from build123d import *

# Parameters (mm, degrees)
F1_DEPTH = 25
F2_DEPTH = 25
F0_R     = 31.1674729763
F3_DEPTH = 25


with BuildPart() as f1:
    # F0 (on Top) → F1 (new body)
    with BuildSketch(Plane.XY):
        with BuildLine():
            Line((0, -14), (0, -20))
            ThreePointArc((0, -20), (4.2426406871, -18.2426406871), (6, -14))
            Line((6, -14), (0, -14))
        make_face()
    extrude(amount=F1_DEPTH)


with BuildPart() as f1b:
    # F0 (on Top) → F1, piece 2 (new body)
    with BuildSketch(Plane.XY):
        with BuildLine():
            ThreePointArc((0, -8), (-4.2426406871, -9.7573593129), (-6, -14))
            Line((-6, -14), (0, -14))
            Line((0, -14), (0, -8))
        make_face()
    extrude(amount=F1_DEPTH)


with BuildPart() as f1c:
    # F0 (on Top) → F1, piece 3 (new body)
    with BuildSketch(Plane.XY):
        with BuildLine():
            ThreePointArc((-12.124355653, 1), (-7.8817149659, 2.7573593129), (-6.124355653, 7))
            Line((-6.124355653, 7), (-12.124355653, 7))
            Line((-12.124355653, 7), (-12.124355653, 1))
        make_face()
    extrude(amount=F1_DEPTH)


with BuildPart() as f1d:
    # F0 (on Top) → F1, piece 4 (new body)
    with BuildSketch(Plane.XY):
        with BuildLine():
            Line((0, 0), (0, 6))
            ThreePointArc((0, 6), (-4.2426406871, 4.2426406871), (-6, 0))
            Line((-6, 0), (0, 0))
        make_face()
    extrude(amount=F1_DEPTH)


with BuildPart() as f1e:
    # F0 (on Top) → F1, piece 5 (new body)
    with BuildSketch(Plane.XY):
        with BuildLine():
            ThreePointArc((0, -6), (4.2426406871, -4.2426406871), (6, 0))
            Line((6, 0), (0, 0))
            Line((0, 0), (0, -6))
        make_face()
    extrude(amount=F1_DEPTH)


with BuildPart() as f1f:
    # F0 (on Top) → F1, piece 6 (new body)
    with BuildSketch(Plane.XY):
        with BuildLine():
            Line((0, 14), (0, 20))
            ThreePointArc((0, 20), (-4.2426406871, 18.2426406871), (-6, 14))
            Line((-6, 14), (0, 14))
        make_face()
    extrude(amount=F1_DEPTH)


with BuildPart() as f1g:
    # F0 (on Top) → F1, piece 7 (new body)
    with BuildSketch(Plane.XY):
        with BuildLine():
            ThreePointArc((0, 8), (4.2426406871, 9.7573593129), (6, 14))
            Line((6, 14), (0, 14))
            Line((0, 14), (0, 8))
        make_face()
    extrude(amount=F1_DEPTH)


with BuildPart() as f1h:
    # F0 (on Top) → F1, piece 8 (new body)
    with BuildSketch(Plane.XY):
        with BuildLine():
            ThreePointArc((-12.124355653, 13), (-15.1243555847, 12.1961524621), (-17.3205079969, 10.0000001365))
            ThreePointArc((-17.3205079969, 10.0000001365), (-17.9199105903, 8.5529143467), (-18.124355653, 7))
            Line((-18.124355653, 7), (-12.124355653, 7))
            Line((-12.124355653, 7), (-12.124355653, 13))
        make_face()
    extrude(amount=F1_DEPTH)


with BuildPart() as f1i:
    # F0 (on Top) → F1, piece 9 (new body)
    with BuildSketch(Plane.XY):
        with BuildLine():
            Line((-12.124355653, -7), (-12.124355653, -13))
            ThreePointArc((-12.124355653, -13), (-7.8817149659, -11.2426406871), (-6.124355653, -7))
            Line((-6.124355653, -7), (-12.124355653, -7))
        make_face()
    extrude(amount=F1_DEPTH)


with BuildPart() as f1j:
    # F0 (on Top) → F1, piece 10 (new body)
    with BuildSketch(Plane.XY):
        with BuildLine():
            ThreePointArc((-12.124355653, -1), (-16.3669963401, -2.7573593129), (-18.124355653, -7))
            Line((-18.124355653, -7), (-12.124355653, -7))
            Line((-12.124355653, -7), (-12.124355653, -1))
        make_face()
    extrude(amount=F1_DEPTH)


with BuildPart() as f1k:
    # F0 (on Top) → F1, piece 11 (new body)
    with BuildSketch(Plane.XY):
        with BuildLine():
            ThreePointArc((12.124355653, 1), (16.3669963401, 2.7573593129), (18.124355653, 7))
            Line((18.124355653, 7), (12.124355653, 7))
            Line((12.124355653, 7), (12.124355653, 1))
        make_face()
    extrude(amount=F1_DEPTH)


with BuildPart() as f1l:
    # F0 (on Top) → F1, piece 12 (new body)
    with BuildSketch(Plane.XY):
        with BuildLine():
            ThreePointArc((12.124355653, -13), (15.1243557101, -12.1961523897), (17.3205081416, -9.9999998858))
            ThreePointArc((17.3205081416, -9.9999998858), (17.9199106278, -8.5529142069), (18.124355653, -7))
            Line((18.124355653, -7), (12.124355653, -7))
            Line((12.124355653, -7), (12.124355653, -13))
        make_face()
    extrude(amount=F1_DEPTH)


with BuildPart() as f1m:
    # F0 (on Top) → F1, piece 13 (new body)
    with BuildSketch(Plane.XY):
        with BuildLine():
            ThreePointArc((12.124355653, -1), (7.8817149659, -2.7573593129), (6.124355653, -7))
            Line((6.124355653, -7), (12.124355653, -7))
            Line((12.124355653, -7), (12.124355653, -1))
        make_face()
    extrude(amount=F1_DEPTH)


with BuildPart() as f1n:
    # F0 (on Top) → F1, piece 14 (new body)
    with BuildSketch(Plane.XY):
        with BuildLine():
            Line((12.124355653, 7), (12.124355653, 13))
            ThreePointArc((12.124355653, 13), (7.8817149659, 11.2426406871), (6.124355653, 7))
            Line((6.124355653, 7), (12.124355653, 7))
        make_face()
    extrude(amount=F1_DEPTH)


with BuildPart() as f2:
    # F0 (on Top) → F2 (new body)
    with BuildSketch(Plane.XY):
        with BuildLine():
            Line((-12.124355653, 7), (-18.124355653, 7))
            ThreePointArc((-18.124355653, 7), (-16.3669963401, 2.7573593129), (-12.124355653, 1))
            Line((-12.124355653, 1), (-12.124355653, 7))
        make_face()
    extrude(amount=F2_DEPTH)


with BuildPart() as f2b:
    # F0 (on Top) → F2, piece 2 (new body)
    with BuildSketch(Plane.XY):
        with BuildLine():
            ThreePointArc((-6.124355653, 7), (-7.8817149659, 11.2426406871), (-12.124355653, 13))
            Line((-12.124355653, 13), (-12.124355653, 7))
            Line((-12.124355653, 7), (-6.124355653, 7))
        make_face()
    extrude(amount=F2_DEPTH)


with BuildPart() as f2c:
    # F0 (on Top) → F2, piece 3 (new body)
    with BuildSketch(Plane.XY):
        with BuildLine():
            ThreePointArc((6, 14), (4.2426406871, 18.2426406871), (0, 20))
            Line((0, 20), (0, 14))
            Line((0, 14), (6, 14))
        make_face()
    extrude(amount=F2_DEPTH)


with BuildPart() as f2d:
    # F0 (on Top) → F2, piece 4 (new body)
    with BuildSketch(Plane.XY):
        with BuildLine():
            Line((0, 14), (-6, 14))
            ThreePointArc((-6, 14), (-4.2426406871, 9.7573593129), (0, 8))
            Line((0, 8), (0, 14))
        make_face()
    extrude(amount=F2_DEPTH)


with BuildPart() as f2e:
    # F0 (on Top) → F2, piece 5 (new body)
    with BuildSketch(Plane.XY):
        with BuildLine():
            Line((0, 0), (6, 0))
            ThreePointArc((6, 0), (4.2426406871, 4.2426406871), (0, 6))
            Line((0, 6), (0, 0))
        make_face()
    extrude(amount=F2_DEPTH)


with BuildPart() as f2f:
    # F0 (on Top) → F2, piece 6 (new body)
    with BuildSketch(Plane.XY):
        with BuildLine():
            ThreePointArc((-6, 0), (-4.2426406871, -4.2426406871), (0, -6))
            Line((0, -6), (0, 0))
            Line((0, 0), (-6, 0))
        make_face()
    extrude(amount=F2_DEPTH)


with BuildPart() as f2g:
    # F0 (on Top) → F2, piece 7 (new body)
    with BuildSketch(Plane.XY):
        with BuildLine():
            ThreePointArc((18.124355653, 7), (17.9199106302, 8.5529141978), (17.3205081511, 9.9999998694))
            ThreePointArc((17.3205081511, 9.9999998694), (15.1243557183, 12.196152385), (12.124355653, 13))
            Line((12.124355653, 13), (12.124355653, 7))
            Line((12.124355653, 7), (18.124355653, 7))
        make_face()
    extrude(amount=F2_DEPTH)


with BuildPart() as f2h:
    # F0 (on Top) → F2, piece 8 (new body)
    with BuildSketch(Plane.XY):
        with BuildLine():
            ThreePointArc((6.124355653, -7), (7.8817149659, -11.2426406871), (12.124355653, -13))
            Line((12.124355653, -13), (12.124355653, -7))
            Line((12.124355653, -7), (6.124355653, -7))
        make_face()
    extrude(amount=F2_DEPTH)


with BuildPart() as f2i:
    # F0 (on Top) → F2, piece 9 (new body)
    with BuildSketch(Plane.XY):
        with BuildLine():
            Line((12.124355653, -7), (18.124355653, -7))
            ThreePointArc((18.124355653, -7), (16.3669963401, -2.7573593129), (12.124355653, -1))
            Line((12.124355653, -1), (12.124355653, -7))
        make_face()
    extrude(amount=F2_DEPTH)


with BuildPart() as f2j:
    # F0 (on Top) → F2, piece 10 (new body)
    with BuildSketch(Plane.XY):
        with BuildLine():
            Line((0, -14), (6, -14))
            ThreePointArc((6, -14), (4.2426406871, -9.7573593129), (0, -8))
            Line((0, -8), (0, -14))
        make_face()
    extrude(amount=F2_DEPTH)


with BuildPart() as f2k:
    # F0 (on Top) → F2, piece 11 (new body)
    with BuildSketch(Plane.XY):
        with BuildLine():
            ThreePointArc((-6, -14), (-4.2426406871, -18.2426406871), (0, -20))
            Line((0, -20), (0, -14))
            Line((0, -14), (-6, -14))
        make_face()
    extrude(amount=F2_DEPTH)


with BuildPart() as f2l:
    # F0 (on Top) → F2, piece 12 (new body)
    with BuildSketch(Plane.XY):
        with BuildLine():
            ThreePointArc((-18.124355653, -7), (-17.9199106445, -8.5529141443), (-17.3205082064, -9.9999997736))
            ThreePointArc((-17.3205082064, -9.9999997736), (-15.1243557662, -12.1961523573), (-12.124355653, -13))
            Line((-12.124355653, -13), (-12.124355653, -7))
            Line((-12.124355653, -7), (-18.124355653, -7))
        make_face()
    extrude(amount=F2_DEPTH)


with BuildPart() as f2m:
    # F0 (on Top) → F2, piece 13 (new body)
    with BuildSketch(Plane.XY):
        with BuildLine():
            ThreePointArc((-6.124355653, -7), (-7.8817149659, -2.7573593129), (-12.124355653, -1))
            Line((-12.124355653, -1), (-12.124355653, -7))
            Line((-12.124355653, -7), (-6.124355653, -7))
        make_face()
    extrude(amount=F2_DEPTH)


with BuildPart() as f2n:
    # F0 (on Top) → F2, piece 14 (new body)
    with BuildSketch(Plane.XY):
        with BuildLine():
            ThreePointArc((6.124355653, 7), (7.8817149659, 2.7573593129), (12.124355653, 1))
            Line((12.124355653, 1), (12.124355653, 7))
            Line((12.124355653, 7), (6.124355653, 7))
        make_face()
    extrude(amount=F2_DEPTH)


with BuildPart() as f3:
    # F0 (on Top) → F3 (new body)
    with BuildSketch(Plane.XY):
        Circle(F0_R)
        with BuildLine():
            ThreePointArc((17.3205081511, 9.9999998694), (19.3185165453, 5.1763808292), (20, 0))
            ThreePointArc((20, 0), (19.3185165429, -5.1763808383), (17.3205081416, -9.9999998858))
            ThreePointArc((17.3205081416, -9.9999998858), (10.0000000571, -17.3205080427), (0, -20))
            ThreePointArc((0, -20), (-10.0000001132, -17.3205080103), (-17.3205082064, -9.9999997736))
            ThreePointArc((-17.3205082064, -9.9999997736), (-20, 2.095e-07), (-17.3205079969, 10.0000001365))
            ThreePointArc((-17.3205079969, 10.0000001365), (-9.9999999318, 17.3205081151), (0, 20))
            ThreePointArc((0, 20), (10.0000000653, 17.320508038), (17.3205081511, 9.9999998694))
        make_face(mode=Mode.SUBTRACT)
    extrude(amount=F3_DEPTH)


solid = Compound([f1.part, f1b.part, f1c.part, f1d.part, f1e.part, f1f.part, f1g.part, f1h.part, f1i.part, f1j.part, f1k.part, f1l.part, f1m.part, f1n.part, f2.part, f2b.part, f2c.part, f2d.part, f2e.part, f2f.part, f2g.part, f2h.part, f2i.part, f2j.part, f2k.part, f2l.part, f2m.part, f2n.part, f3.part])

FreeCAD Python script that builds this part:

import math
import FreeCAD as App
import Part
import Sketcher

doc = App.newDocument("Part")
params = doc.addObject("Spreadsheet::Sheet", "Params")
for row, (alias, value) in enumerate([
    ("sketch1_radius", "6 mm"),
    ("pad1_length", "25 mm"),
    ("sketch2_radius", "6 mm"),
    ("pad2_length", "25 mm"),
    ("sketch3_radius", "6 mm"),
    ("pad3_length", "25 mm"),
    ("sketch4_radius", "6 mm"),
    ("pad4_length", "25 mm"),
    ("sketch5_radius", "6 mm"),
    ("pad5_length", "25 mm"),
    ("sketch6_radius", "6 mm"),
    ("pad6_length", "25 mm"),
    ("sketch7_radius", "6 mm"),
    ("pad7_length", "25 mm"),
    ("sketch8_radius", "6 mm"),
    ("pad8_length", "25 mm"),
    ("sketch9_radius", "6 mm"),
    ("pad9_length", "25 mm"),
    ("sketch10_radius", "6 mm"),
    ("pad10_length", "25 mm"),
    ("sketch11_radius", "6 mm"),
    ("pad11_length", "25 mm"),
    ("sketch12_radius", "6 mm"),
    ("pad12_length", "25 mm"),
    ("sketch13_radius", "6 mm"),
    ("pad13_length", "25 mm"),
    ("sketch14_radius", "6 mm"),
    ("pad14_length", "25 mm"),
    ("sketch15_radius", "6 mm"),
    ("pad15_length", "25 mm"),
    ("sketch16_radius", "6 mm"),
    ("pad16_length", "25 mm"),
    ("sketch17_radius", "6 mm"),
    ("pad17_length", "25 mm"),
    ("sketch18_radius", "6 mm"),
    ("pad18_length", "25 mm"),
    ("sketch19_radius", "6 mm"),
    ("pad19_length", "25 mm"),
    ("sketch20_radius", "6 mm"),
    ("pad20_length", "25 mm"),
    ("sketch21_radius", "6 mm"),
    ("pad21_length", "25 mm"),
    ("sketch22_radius", "6 mm"),
    ("pad22_length", "25 mm"),
    ("sketch23_radius", "6 mm"),
    ("pad23_length", "25 mm"),
    ("sketch24_radius", "6 mm"),
    ("pad24_length", "25 mm"),
    ("sketch25_radius", "6 mm"),
    ("pad25_length", "25 mm"),
    ("sketch26_radius", "6 mm"),
    ("pad26_length", "25 mm"),
    ("sketch27_radius", "6 mm"),
    ("pad27_length", "25 mm"),
    ("sketch28_radius", "6 mm"),
    ("pad28_length", "25 mm"),
    ("sketch29_radius", "20 mm"),
    ("pad29_length", "25 mm"),
], start=1):
    params.set(f"A{row}", alias)
    params.set(f"B{row}", "=" + value)
    params.setAlias(f"B{row}", alias)

body = doc.addObject("PartDesign::Body", "Body")

sketch1 = body.newObject("Sketcher::SketchObject", "Sketch")
sketch1.AttachmentSupport = (doc.getObject("XY_Plane"), [""])
sketch1.MapMode = "FlatFace"
sketch1.addGeometry([
    Part.LineSegment(App.Vector(0, -14, 0), App.Vector(0, -20, 0)),
    Part.ArcOfCircle(Part.Circle(App.Vector(0, -14, 0), App.Vector(0, 0, 1), 6), math.radians(-90), math.radians(0)),
    Part.LineSegment(App.Vector(6, -14, 0), App.Vector(0, -14, 0)),
], False)
sketch1.addConstraint([
    Sketcher.Constraint("Coincident", 0, 2, 1, 1),
    Sketcher.Constraint("Coincident", 1, 2, 2, 1),
    Sketcher.Constraint("Coincident", 2, 2, 0, 1),
    Sketcher.Constraint("Vertical", 0),
    Sketcher.Constraint("Horizontal", 2),
    Sketcher.Constraint("Coincident", 2, 2, 1, 3),
    Sketcher.Constraint("PointOnObject", 1, 3, -2),
    Sketcher.Constraint("Radius", 1, 6.0),
    Sketcher.Constraint("DistanceY", 1, 3, -1, 1, 14.0),
])
sketch1.setExpression("Constraints[7]", "Params.sketch1_radius")
pad1 = body.newObject("PartDesign::Pad", "Pad")
pad1.Profile = sketch1
pad1.setExpression("Length", "Params.pad1_length")
body2 = doc.addObject("PartDesign::Body", "Body001")

sketch2 = body2.newObject("Sketcher::SketchObject", "Sketch001")
sketch2.AttachmentSupport = (doc.getObject("XY_Plane001"), [""])
sketch2.MapMode = "FlatFace"
sketch2.addGeometry([
    Part.ArcOfCircle(Part.Circle(App.Vector(0, -14, 0), App.Vector(0, 0, 1), 6), math.radians(90), math.radians(180)),
    Part.LineSegment(App.Vector(-6, -14, 0), App.Vector(0, -14, 0)),
    Part.LineSegment(App.Vector(0, -14, 0), App.Vector(0, -8, 0)),
], False)
sketch2.addConstraint([
    Sketcher.Constraint("Coincident", 0, 2, 1, 1),
    Sketcher.Constraint("Coincident", 1, 2, 2, 1),
    Sketcher.Constraint("Coincident", 2, 2, 0, 1),
    Sketcher.Constraint("Horizontal", 1),
    Sketcher.Constraint("Vertical", 2),
    Sketcher.Constraint("Coincident", 1, 2, 0, 3),
    Sketcher.Constraint("PointOnObject", 0, 3, -2),
    Sketcher.Constraint("Radius", 0, 6.0),
    Sketcher.Constraint("DistanceY", 0, 3, -1, 1, 14.0),
])
sketch2.setExpression("Constraints[7]", "Params.sketch2_radius")
pad2 = body2.newObject("PartDesign::Pad", "Pad001")
pad2.Profile = sketch2
pad2.setExpression("Length", "Params.pad2_length")
body3 = doc.addObject("PartDesign::Body", "Body002")

sketch3 = body3.newObject("Sketcher::SketchObject", "Sketch002")
sketch3.AttachmentSupport = (doc.getObject("XY_Plane002"), [""])
sketch3.MapMode = "FlatFace"
sketch3.addGeometry([
    Part.ArcOfCircle(Part.Circle(App.Vector(-12.124356, 7, 0), App.Vector(0, 0, 1), 6), math.radians(-90), math.radians(0)),
    Part.LineSegment(App.Vector(-6.124356, 7, 0), App.Vector(-12.124356, 7, 0)),
    Part.LineSegment(App.Vector(-12.124356, 7, 0), App.Vector(-12.124356, 1, 0)),
], False)
sketch3.addConstraint([
    Sketcher.Constraint("Coincident", 0, 2, 1, 1),
    Sketcher.Constraint("Coincident", 1, 2, 2, 1),
    Sketcher.Constraint("Coincident", 2, 2, 0, 1),
    Sketcher.Constraint("Horizontal", 1),
    Sketcher.Constraint("Vertical", 2),
    Sketcher.Constraint("Coincident", 1, 2, 0, 3),
    Sketcher.Constraint("Radius", 0, 6.0),
    Sketcher.Constraint("DistanceY", -1, 1, 0, 3, 7.0),
    Sketcher.Constraint("DistanceX", 0, 3, -1, 1, 12.124356),
])
sketch3.setExpression("Constraints[6]", "Params.sketch3_radius")
pad3 = body3.newObject("PartDesign::Pad", "Pad002")
pad3.Profile = sketch3
pad3.setExpression("Length", "Params.pad3_length")
body4 = doc.addObject("PartDesign::Body", "Body003")

sketch4 = body4.newObject("Sketcher::SketchObject", "Sketch003")
sketch4.AttachmentSupport = (doc.getObject("XY_Plane003"), [""])
sketch4.MapMode = "FlatFace"
sketch4.addGeometry([
    Part.LineSegment(App.Vector(0, 0, 0), App.Vector(0, 6, 0)),
    Part.ArcOfCircle(Part.Circle(App.Vector(0, 0, 0), App.Vector(0, 0, 1), 6), math.radians(90), math.radians(180)),
    Part.LineSegment(App.Vector(-6, 0, 0), App.Vector(0, 0, 0)),
], False)
sketch4.addConstraint([
    Sketcher.Constraint("Coincident", 0, 2, 1, 1),
    Sketcher.Constraint("Coincident", 1, 2, 2, 1),
    Sketcher.Constraint("Coincident", 2, 2, 0, 1),
    Sketcher.Constraint("Vertical", 0),
    Sketcher.Constraint("Horizontal", 2),
    Sketcher.Constraint("Coincident", 1, 3, -1, 1),
    Sketcher.Constraint("Coincident", 2, 2, -1, 1),
    Sketcher.Constraint("Radius", 1, 6.0),
])
sketch4.setExpression("Constraints[7]", "Params.sketch4_radius")
pad4 = body4.newObject("PartDesign::Pad", "Pad003")
pad4.Profile = sketch4
pad4.setExpression("Length", "Params.pad4_length")
body5 = doc.addObject("PartDesign::Body", "Body004")

sketch5 = body5.newObject("Sketcher::SketchObject", "Sketch004")
sketch5.AttachmentSupport = (doc.getObject("XY_Plane004"), [""])
sketch5.MapMode = "FlatFace"
sketch5.addGeometry([
    Part.ArcOfCircle(Part.Circle(App.Vector(0, 0, 0), App.Vector(0, 0, 1), 6), math.radians(-90), math.radians(0)),
    Part.LineSegment(App.Vector(6, 0, 0), App.Vector(0, 0, 0)),
    Part.LineSegment(App.Vector(0, 0, 0), App.Vector(0, -6, 0)),
], False)
sketch5.addConstraint([
    Sketcher.Constraint("Coincident", 0, 2, 1, 1),
    Sketcher.Constraint("Coincident", 1, 2, 2, 1),
    Sketcher.Constraint("Coincident", 2, 2, 0, 1),
    Sketcher.Constraint("Horizontal", 1),
    Sketcher.Constraint("Vertical", 2),
    Sketcher.Constraint("Coincident", 0, 3, -1, 1),
    Sketcher.Constraint("Coincident", 1, 2, -1, 1),
    Sketcher.Constraint("Radius", 0, 6.0),
])
sketch5.setExpression("Constraints[7]", "Params.sketch5_radius")
pad5 = body5.newObject("PartDesign::Pad", "Pad004")
pad5.Profile = sketch5
pad5.setExpression("Length", "Params.pad5_length")
body6 = doc.addObject("PartDesign::Body", "Body005")

sketch6 = body6.newObject("Sketcher::SketchObject", "Sketch005")
sketch6.AttachmentSupport = (doc.getObject("XY_Plane005"), [""])
sketch6.MapMode = "FlatFace"
sketch6.addGeometry([
    Part.LineSegment(App.Vector(0, 14, 0), App.Vector(0, 20, 0)),
    Part.ArcOfCircle(Part.Circle(App.Vector(0, 14, 0), App.Vector(0, 0, 1), 6), math.radians(90), math.radians(180)),
    Part.LineSegment(App.Vector(-6, 14, 0), App.Vector(0, 14, 0)),
], False)
sketch6.addConstraint([
    Sketcher.Constraint("Coincident", 0, 2, 1, 1),
    Sketcher.Constraint("Coincident", 1, 2, 2, 1),
    Sketcher.Constraint("Coincident", 2, 2, 0, 1),
    Sketcher.Constraint("Vertical", 0),
    Sketcher.Constraint("Horizontal", 2),
    Sketcher.Constraint("Coincident", 2, 2, 1, 3),
    Sketcher.Constraint("PointOnObject", 1, 3, -2),
    Sketcher.Constraint("Radius", 1, 6.0),
    Sketcher.Constraint("DistanceY", -1, 1, 1, 3, 14.0),
])
sketch6.setExpression("Constraints[7]", "Params.sketch6_radius")
pad6 = body6.newObject("PartDesign::Pad", "Pad005")
pad6.Profile = sketch6
pad6.setExpression("Length", "Params.pad6_length")
body7 = doc.addObject("PartDesign::Body", "Body006")

sketch7 = body7.newObject("Sketcher::SketchObject", "Sketch006")
sketch7.AttachmentSupport = (doc.getObject("XY_Plane006"), [""])
sketch7.MapMode = "FlatFace"
sketch7.addGeometry([
    Part.ArcOfCircle(Part.Circle(App.Vector(0, 14, 0), App.Vector(0, 0, 1), 6), math.radians(-90), math.radians(0)),
    Part.LineSegment(App.Vector(6, 14, 0), App.Vector(0, 14, 0)),
    Part.LineSegment(App.Vector(0, 14, 0), App.Vector(0, 8, 0)),
], False)
sketch7.addConstraint([
    Sketcher.Constraint("Coincident", 0, 2, 1, 1),
    Sketcher.Constraint("Coincident", 1, 2, 2, 1),
    Sketcher.Constraint("Coincident", 2, 2, 0, 1),
    Sketcher.Constraint("Horizontal", 1),
    Sketcher.Constraint("Vertical", 2),
    Sketcher.Constraint("Coincident", 1, 2, 0, 3),
    Sketcher.Constraint("PointOnObject", 0, 3, -2),
    Sketcher.Constraint("Radius", 0, 6.0),
    Sketcher.Constraint("DistanceY", -1, 1, 0, 3, 14.0),
])
sketch7.setExpression("Constraints[7]", "Params.sketch7_radius")
pad7 = body7.newObject("PartDesign::Pad", "Pad006")
pad7.Profile = sketch7
pad7.setExpression("Length", "Params.pad7_length")
body8 = doc.addObject("PartDesign::Body", "Body007")

sketch8 = body8.newObject("Sketcher::SketchObject", "Sketch007")
sketch8.AttachmentSupport = (doc.getObject("XY_Plane007"), [""])
sketch8.MapMode = "FlatFace"
sketch8.addGeometry([
    Part.ArcOfCircle(Part.Circle(App.Vector(-12.124356, 7, 0), App.Vector(0, 0, 1), 6), math.radians(90), math.radians(149.999998)),
    Part.ArcOfCircle(Part.Circle(App.Vector(-12.124356, 7, 0), App.Vector(0, 0, 1), 6), math.radians(149.999998), math.radians(180)),
    Part.LineSegment(App.Vector(-18.124356, 7, 0), App.Vector(-12.124356, 7, 0)),
    Part.LineSegment(App.Vector(-12.124356, 7, 0), App.Vector(-12.124356, 13, 0)),
], False)
sketch8.addConstraint([
    Sketcher.Constraint("Tangent", 0, 2, 1, 1),
    Sketcher.Constraint("Coincident", 1, 2, 2, 1),
    Sketcher.Constraint("Coincident", 2, 2, 3, 1),
    Sketcher.Constraint("Coincident", 3, 2, 0, 1),
    Sketcher.Constraint("Horizontal", 2),
    Sketcher.Constraint("Vertical", 3),
    Sketcher.Constraint("Coincident", 2, 2, 0, 3),
    Sketcher.Constraint("Equal", 0, 1),
    Sketcher.Constraint("Radius", 0, 6.0),
    Sketcher.Constraint("DistanceY", -1, 1, 0, 3, 7.0),
    Sketcher.Constraint("DistanceY", -1, 1, 0, 2, 10.0),
    Sketcher.Constraint("DistanceX", 0, 3, -1, 1, 12.124356),
])
sketch8.setExpression("Constraints[8]", "Params.sketch8_radius")
pad8 = body8.newObject("PartDesign::Pad", "Pad007")
pad8.Profile = sketch8
pad8.setExpression("Length", "Params.pad8_length")
body9 = doc.addObject("PartDesign::Body", "Body008")

sketch9 = body9.newObject("Sketcher::SketchObject", "Sketch008")
sketch9.AttachmentSupport = (doc.getObject("XY_Plane008"), [""])
sketch9.MapMode = "FlatFace"
sketch9.addGeometry([
    Part.LineSegment(App.Vector(-12.124356, -7, 0), App.Vector(-12.124356, -13, 0)),
    Part.ArcOfCircle(Part.Circle(App.Vector(-12.124356, -7, 0), App.Vector(0, 0, 1), 6), math.radians(-90), math.radians(0)),
    Part.LineSegment(App.Vector(-6.124356, -7, 0), App.Vector(-12.124356, -7, 0)),
], False)
sketch9.addConstraint([
    Sketcher.Constraint("Coincident", 0, 2, 1, 1),
    Sketcher.Constraint("Coincident", 1, 2, 2, 1),
    Sketcher.Constraint("Coincident", 2, 2, 0, 1),
    Sketcher.Constraint("Vertical", 0),
    Sketcher.Constraint("Horizontal", 2),
    Sketcher.Constraint("Coincident", 2, 2, 1, 3),
    Sketcher.Constraint("Radius", 1, 6.0),
    Sketcher.Constraint("DistanceY", 1, 3, -1, 1, 7.0),
    Sketcher.Constraint("DistanceX", 1, 3, -1, 1, 12.124356),
])
sketch9.setExpression("Constraints[6]", "Params.sketch9_radius")
pad9 = body9.newObject("PartDesign::Pad", "Pad008")
pad9.Profile = sketch9
pad9.setExpression("Length", "Params.pad9_length")
body10 = doc.addObject("PartDesign::Body", "Body009")

sketch10 = body10.newObject("Sketcher::SketchObject", "Sketch009")
sketch10.AttachmentSupport = (doc.getObject("XY_Plane009"), [""])
sketch10.MapMode = "FlatFace"
sketch10.addGeometry([
    Part.ArcOfCircle(Part.Circle(App.Vector(-12.124356, -7, 0), App.Vector(0, 0, 1), 6), math.radians(90), math.radians(180)),
    Part.LineSegment(App.Vector(-18.124356, -7, 0), App.Vector(-12.124356, -7, 0)),
    Part.LineSegment(App.Vector(-12.124356, -7, 0), App.Vector(-12.124356, -1, 0)),
], False)
sketch10.addConstraint([
    Sketcher.Constraint("Coincident", 0, 2, 1, 1),
    Sketcher.Constraint("Coincident", 1, 2, 2, 1),
    Sketcher.Constraint("Coincident", 2, 2, 0, 1),
    Sketcher.Constraint("Horizontal", 1),
    Sketcher.Constraint("Vertical", 2),
    Sketcher.Constraint("Coincident", 1, 2, 0, 3),
    Sketcher.Constraint("Radius", 0, 6.0),
    Sketcher.Constraint("DistanceY", 0, 3, -1, 1, 7.0),
    Sketcher.Constraint("DistanceX", 0, 3, -1, 1, 12.124356),
])
sketch10.setExpression("Constraints[6]", "Params.sketch10_radius")
pad10 = body10.newObject("PartDesign::Pad", "Pad009")
pad10.Profile = sketch10
pad10.setExpression("Length", "Params.pad10_length")
body11 = doc.addObject("PartDesign::Body", "Body010")

sketch11 = body11.newObject("Sketcher::SketchObject", "Sketch010")
sketch11.AttachmentSupport = (doc.getObject("XY_Plane010"), [""])
sketch11.MapMode = "FlatFace"
sketch11.addGeometry([
    Part.ArcOfCircle(Part.Circle(App.Vector(12.124356, 7, 0), App.Vector(0, 0, 1), 6), math.radians(-90), math.radians(0)),
    Part.LineSegment(App.Vector(18.124356, 7, 0), App.Vector(12.124356, 7, 0)),
    Part.LineSegment(App.Vector(12.124356, 7, 0), App.Vector(12.124356, 1, 0)),
], False)
sketch11.addConstraint([
    Sketcher.Constraint("Coincident", 0, 2, 1, 1),
    Sketcher.Constraint("Coincident", 1, 2, 2, 1),
    Sketcher.Constraint("Coincident", 2, 2, 0, 1),
    Sketcher.Constraint("Horizontal", 1),
    Sketcher.Constraint("Vertical", 2),
    Sketcher.Constraint("Coincident", 1, 2, 0, 3),
    Sketcher.Constraint("Radius", 0, 6.0),
    Sketcher.Constraint("DistanceY", -1, 1, 0, 3, 7.0),
    Sketcher.Constraint("DistanceX", -1, 1, 0, 3, 12.124356),
])
sketch11.setExpression("Constraints[6]", "Params.sketch11_radius")
pad11 = body11.newObject("PartDesign::Pad", "Pad010")
pad11.Profile = sketch11
pad11.setExpression("Length", "Params.pad11_length")
body12 = doc.addObject("PartDesign::Body", "Body011")

sketch12 = body12.newObject("Sketcher::SketchObject", "Sketch011")
sketch12.AttachmentSupport = (doc.getObject("XY_Plane011"), [""])
sketch12.MapMode = "FlatFace"
sketch12.addGeometry([
    Part.ArcOfCircle(Part.Circle(App.Vector(12.124356, -7, 0), App.Vector(0, 0, 1), 6), math.radians(-90), math.radians(-29.999999)),
    Part.ArcOfCircle(Part.Circle(App.Vector(12.124356, -7, 0), App.Vector(0, 0, 1), 6), math.radians(-29.999999), math.radians(0)),
    Part.LineSegment(App.Vector(18.124356, -7, 0), App.Vector(12.124356, -7, 0)),
    Part.LineSegment(App.Vector(12.124356, -7, 0), App.Vector(12.124356, -13, 0)),
], False)
sketch12.addConstraint([
    Sketcher.Constraint("Tangent", 0, 2, 1, 1),
    Sketcher.Constraint("Coincident", 1, 2, 2, 1),
    Sketcher.Constraint("Coincident", 2, 2, 3, 1),
    Sketcher.Constraint("Coincident", 3, 2, 0, 1),
    Sketcher.Constraint("Horizontal", 2),
    Sketcher.Constraint("Vertical", 3),
    Sketcher.Constraint("Coincident", 2, 2, 0, 3),
    Sketcher.Constraint("Equal", 0, 1),
    Sketcher.Constraint("Radius", 0, 6.0),
    Sketcher.Constraint("DistanceY", 0, 3, -1, 1, 7.0),
    Sketcher.Constraint("DistanceY", 0, 2, -1, 1, 10.0),
    Sketcher.Constraint("DistanceX", -1, 1, 0, 2, 17.320508),
])
sketch12.setExpression("Constraints[8]", "Params.sketch12_radius")
pad12 = body12.newObject("PartDesign::Pad", "Pad011")
pad12.Profile = sketch12
pad12.setExpression("Length", "Params.pad12_length")
body13 = doc.addObject("PartDesign::Body", "Body012")

sketch13 = body13.newObject("Sketcher::SketchObject", "Sketch012")
sketch13.AttachmentSupport = (doc.getObject("XY_Plane012"), [""])
sketch13.MapMode = "FlatFace"
sketch13.addGeometry([
    Part.ArcOfCircle(Part.Circle(App.Vector(12.124356, -7, 0), App.Vector(0, 0, 1), 6), math.radians(90), math.radians(180)),
    Part.LineSegment(App.Vector(6.124356, -7, 0), App.Vector(12.124356, -7, 0)),
    Part.LineSegment(App.Vector(12.124356, -7, 0), App.Vector(12.124356, -1, 0)),
], False)
sketch13.addConstraint([
    Sketcher.Constraint("Coincident", 0, 2, 1, 1),
    Sketcher.Constraint("Coincident", 1, 2, 2, 1),
    Sketcher.Constraint("Coincident", 2, 2, 0, 1),
    Sketcher.Constraint("Horizontal", 1),
    Sketcher.Constraint("Vertical", 2),
    Sketcher.Constraint("Coincident", 1, 2, 0, 3),
    Sketcher.Constraint("Radius", 0, 6.0),
    Sketcher.Constraint("DistanceY", 0, 3, -1, 1, 7.0),
    Sketcher.Constraint("DistanceX", -1, 1, 0, 3, 12.124356),
])
sketch13.setExpression("Constraints[6]", "Params.sketch13_radius")
pad13 = body13.newObject("PartDesign::Pad", "Pad012")
pad13.Profile = sketch13
pad13.setExpression("Length", "Params.pad13_length")
body14 = doc.addObject("PartDesign::Body", "Body013")

sketch14 = body14.newObject("Sketcher::SketchObject", "Sketch013")
sketch14.AttachmentSupport = (doc.getObject("XY_Plane013"), [""])
sketch14.MapMode = "FlatFace"
sketch14.addGeometry([
    Part.LineSegment(App.Vector(12.124356, 7, 0), App.Vector(12.124356, 13, 0)),
    Part.ArcOfCircle(Part.Circle(App.Vector(12.124356, 7, 0), App.Vector(0, 0, 1), 6), math.radians(90), math.radians(180)),
    Part.LineSegment(App.Vector(6.124356, 7, 0), App.Vector(12.124356, 7, 0)),
], False)
sketch14.addConstraint([
    Sketcher.Constraint("Coincident", 0, 2, 1, 1),
    Sketcher.Constraint("Coincident", 1, 2, 2, 1),
    Sketcher.Constraint("Coincident", 2, 2, 0, 1),
    Sketcher.Constraint("Vertical", 0),
    Sketcher.Constraint("Horizontal", 2),
    Sketcher.Constraint("Coincident", 2, 2, 1, 3),
    Sketcher.Constraint("Radius", 1, 6.0),
    Sketcher.Constraint("DistanceY", -1, 1, 1, 3, 7.0),
    Sketcher.Constraint("DistanceX", -1, 1, 1, 3, 12.124356),
])
sketch14.setExpression("Constraints[6]", "Params.sketch14_radius")
pad14 = body14.newObject("PartDesign::Pad", "Pad013")
pad14.Profile = sketch14
pad14.setExpression("Length", "Params.pad14_length")
body15 = doc.addObject("PartDesign::Body", "Body014")

sketch15 = body15.newObject("Sketcher::SketchObject", "Sketch014")
sketch15.AttachmentSupport = (doc.getObject("XY_Plane014"), [""])
sketch15.MapMode = "FlatFace"
sketch15.addGeometry([
    Part.LineSegment(App.Vector(-12.124356, 7, 0), App.Vector(-18.124356, 7, 0)),
    Part.ArcOfCircle(Part.Circle(App.Vector(-12.124356, 7, 0), App.Vector(0, 0, 1), 6), math.radians(180), math.radians(270)),
    Part.LineSegment(App.Vector(-12.124356, 1, 0), App.Vector(-12.124356, 7, 0)),
], False)
sketch15.addConstraint([
    Sketcher.Constraint("Coincident", 0, 2, 1, 1),
    Sketcher.Constraint("Coincident", 1, 2, 2, 1),
    Sketcher.Constraint("Coincident", 2, 2, 0, 1),
    Sketcher.Constraint("Horizontal", 0),
    Sketcher.Constraint("Vertical", 2),
    Sketcher.Constraint("Coincident", 2, 2, 1, 3),
    Sketcher.Constraint("Radius", 1, 6.0),
    Sketcher.Constraint("DistanceY", -1, 1, 1, 3, 7.0),
    Sketcher.Constraint("DistanceX", 1, 3, -1, 1, 12.124356),
])
sketch15.setExpression("Constraints[6]", "Params.sketch15_radius")
pad15 = body15.newObject("PartDesign::Pad", "Pad014")
pad15.Profile = sketch15
pad15.setExpression("Length", "Params.pad15_length")
body16 = doc.addObject("PartDesign::Body", "Body015")

sketch16 = body16.newObject("Sketcher::SketchObject", "Sketch015")
sketch16.AttachmentSupport = (doc.getObject("XY_Plane015"), [""])
sketch16.MapMode = "FlatFace"
sketch16.addGeometry([
    Part.ArcOfCircle(Part.Circle(App.Vector(-12.124356, 7, 0), App.Vector(0, 0, 1), 6), math.radians(0), math.radians(90)),
    Part.LineSegment(App.Vector(-12.124356, 13, 0), App.Vector(-12.124356, 7, 0)),
    Part.LineSegment(App.Vector(-12.124356, 7, 0), App.Vector(-6.124356, 7, 0)),
], False)
sketch16.addConstraint([
    Sketcher.Constraint("Coincident", 0, 2, 1, 1),
    Sketcher.Constraint("Coincident", 1, 2, 2, 1),
    Sketcher.Constraint("Coincident", 2, 2, 0, 1),
    Sketcher.Constraint("Vertical", 1),
    Sketcher.Constraint("Horizontal", 2),
    Sketcher.Constraint("Coincident", 1, 2, 0, 3),
    Sketcher.Constraint("Radius", 0, 6.0),
    Sketcher.Constraint("DistanceY", -1, 1, 0, 3, 7.0),
    Sketcher.Constraint("DistanceX", 0, 3, -1, 1, 12.124356),
])
sketch16.setExpression("Constraints[6]", "Params.sketch16_radius")
pad16 = body16.newObject("PartDesign::Pad", "Pad015")
pad16.Profile = sketch16
pad16.setExpression("Length", "Params.pad16_length")
body17 = doc.addObject("PartDesign::Body", "Body016")

sketch17 = body17.newObject("Sketcher::SketchObject", "Sketch016")
sketch17.AttachmentSupport = (doc.getObject("XY_Plane016"), [""])
sketch17.MapMode = "FlatFace"
sketch17.addGeometry([
    Part.ArcOfCircle(Part.Circle(App.Vector(0, 14, 0), App.Vector(0, 0, 1), 6), math.radians(0), math.radians(90)),
    Part.LineSegment(App.Vector(0, 20, 0), App.Vector(0, 14, 0)),
    Part.LineSegment(App.Vector(0, 14, 0), App.Vector(6, 14, 0)),
], False)
sketch17.addConstraint([
    Sketcher.Constraint("Coincident", 0, 2, 1, 1),
    Sketcher.Constraint("Coincident", 1, 2, 2, 1),
    Sketcher.Constraint("Coincident", 2, 2, 0, 1),
    Sketcher.Constraint("Vertical", 1),
    Sketcher.Constraint("Horizontal", 2),
    Sketcher.Constraint("Coincident", 1, 2, 0, 3),
    Sketcher.Constraint("PointOnObject", 0, 3, -2),
    Sketcher.Constraint("Radius", 0, 6.0),
    Sketcher.Constraint("DistanceY", -1, 1, 0, 3, 14.0),
])
sketch17.setExpression("Constraints[7]", "Params.sketch17_radius")
pad17 = body17.newObject("PartDesign::Pad", "Pad016")
pad17.Profile = sketch17
pad17.setExpression("Length", "Params.pad17_length")
body18 = doc.addObject("PartDesign::Body", "Body017")

sketch18 = body18.newObject("Sketcher::SketchObject", "Sketch017")
sketch18.AttachmentSupport = (doc.getObject("XY_Plane017"), [""])
sketch18.MapMode = "FlatFace"
sketch18.addGeometry([
    Part.LineSegment(App.Vector(0, 14, 0), App.Vector(-6, 14, 0)),
    Part.ArcOfCircle(Part.Circle(App.Vector(0, 14, 0), App.Vector(0, 0, 1), 6), math.radians(180), math.radians(270)),
    Part.LineSegment(App.Vector(0, 8, 0), App.Vector(0, 14, 0)),
], False)
sketch18.addConstraint([
    Sketcher.Constraint("Coincident", 0, 2, 1, 1),
    Sketcher.Constraint("Coincident", 1, 2, 2, 1),
    Sketcher.Constraint("Coincident", 2, 2, 0, 1),
    Sketcher.Constraint("Horizontal", 0),
    Sketcher.Constraint("Vertical", 2),
    Sketcher.Constraint("Coincident", 2, 2, 1, 3),
    Sketcher.Constraint("PointOnObject", 1, 3, -2),
    Sketcher.Constraint("Radius", 1, 6.0),
    Sketcher.Constraint("DistanceY", -1, 1, 1, 3, 14.0),
])
sketch18.setExpression("Constraints[7]", "Params.sketch18_radius")
pad18 = body18.newObject("PartDesign::Pad", "Pad017")
pad18.Profile = sketch18
pad18.setExpression("Length", "Params.pad18_length")
body19 = doc.addObject("PartDesign::Body", "Body018")

sketch19 = body19.newObject("Sketcher::SketchObject", "Sketch018")
sketch19.AttachmentSupport = (doc.getObject("XY_Plane018"), [""])
sketch19.MapMode = "FlatFace"
sketch19.addGeometry([
    Part.LineSegment(App.Vector(0, 0, 0), App.Vector(6, 0, 0)),
    Part.ArcOfCircle(Part.Circle(App.Vector(0, 0, 0), App.Vector(0, 0, 1), 6), math.radians(0), math.radians(90)),
    Part.LineSegment(App.Vector(0, 6, 0), App.Vector(0, 0, 0)),
], False)
sketch19.addConstraint([
    Sketcher.Constraint("Coincident", 0, 2, 1, 1),
    Sketcher.Constraint("Coincident", 1, 2, 2, 1),
    Sketcher.Constraint("Coincident", 2, 2, 0, 1),
    Sketcher.Constraint("Horizontal", 0),
    Sketcher.Constraint("Vertical", 2),
    Sketcher.Constraint("Coincident", 1, 3, -1, 1),
    Sketcher.Constraint("Coincident", 2, 2, -1, 1),
    Sketcher.Constraint("Radius", 1, 6.0),
])
sketch19.setExpression("Constraints[7]", "Params.sketch19_radius")
pad19 = body19.newObject("PartDesign::Pad", "Pad018")
pad19.Profile = sketch19
pad19.setExpression("Length", "Params.pad19_length")
body20 = doc.addObject("PartDesign::Body", "Body019")

sketch20 = body20.newObject("Sketcher::SketchObject", "Sketch019")
sketch20.AttachmentSupport = (doc.getObject("XY_Plane019"), [""])
sketch20.MapMode = "FlatFace"
sketch20.addGeometry([
    Part.ArcOfCircle(Part.Circle(App.Vector(0, 0, 0), App.Vector(0, 0, 1), 6), math.radians(180), math.radians(270)),
    Part.LineSegment(App.Vector(0, -6, 0), App.Vector(0, 0, 0)),
    Part.LineSegment(App.Vector(0, 0, 0), App.Vector(-6, 0, 0)),
], False)
sketch20.addConstraint([
    Sketcher.Constraint("Coincident", 0, 2, 1, 1),
    Sketcher.Constraint("Coincident", 1, 2, 2, 1),
    Sketcher.Constraint("Coincident", 2, 2, 0, 1),
    Sketcher.Constraint("Vertical", 1),
    Sketcher.Constraint("Horizontal", 2),
    Sketcher.Constraint("Coincident", 0, 3, -1, 1),
    Sketcher.Constraint("Coincident", 1, 2, -1, 1),
    Sketcher.Constraint("Radius", 0, 6.0),
])
sketch20.setExpression("Constraints[7]", "Params.sketch20_radius")
pad20 = body20.newObject("PartDesign::Pad", "Pad019")
pad20.Profile = sketch20
pad20.setExpression("Length", "Params.pad20_length")
body21 = doc.addObject("PartDesign::Body", "Body020")

sketch21 = body21.newObject("Sketcher::SketchObject", "Sketch020")
sketch21.AttachmentSupport = (doc.getObject("XY_Plane020"), [""])
sketch21.MapMode = "FlatFace"
sketch21.addGeometry([
    Part.ArcOfCircle(Part.Circle(App.Vector(12.124356, 7, 0), App.Vector(0, 0, 1), 6), math.radians(0), math.radians(29.999999)),
    Part.ArcOfCircle(Part.Circle(App.Vector(12.124356, 7, 0), App.Vector(0, 0, 1), 6), math.radians(29.999999), math.radians(90)),
    Part.LineSegment(App.Vector(12.124356, 13, 0), App.Vector(12.124356, 7, 0)),
    Part.LineSegment(App.Vector(12.124356, 7, 0), App.Vector(18.124356, 7, 0)),
], False)
sketch21.addConstraint([
    Sketcher.Constraint("Tangent", 0, 2, 1, 1),
    Sketcher.Constraint("Coincident", 1, 2, 2, 1),
    Sketcher.Constraint("Coincident", 2, 2, 3, 1),
    Sketcher.Constraint("Coincident", 3, 2, 0, 1),
    Sketcher.Constraint("Vertical", 2),
    Sketcher.Constraint("Horizontal", 3),
    Sketcher.Constraint("Coincident", 2, 2, 0, 3),
    Sketcher.Constraint("Equal", 0, 1),
    Sketcher.Constraint("Radius", 0, 6.0),
    Sketcher.Constraint("DistanceY", -1, 1, 0, 3, 7.0),
    Sketcher.Constraint("DistanceY", -1, 1, 0, 2, 10.0),
    Sketcher.Constraint("DistanceX", -1, 1, 0, 2, 17.320508),
])
sketch21.setExpression("Constraints[8]", "Params.sketch21_radius")
pad21 = body21.newObject("PartDesign::Pad", "Pad020")
pad21.Profile = sketch21
pad21.setExpression("Length", "Params.pad21_length")
body22 = doc.addObject("PartDesign::Body", "Body021")

sketch22 = body22.newObject("Sketcher::SketchObject", "Sketch021")
sketch22.AttachmentSupport = (doc.getObject("XY_Plane021"), [""])
sketch22.MapMode = "FlatFace"
sketch22.addGeometry([
    Part.ArcOfCircle(Part.Circle(App.Vector(12.124356, -7, 0), App.Vector(0, 0, 1), 6), math.radians(180), math.radians(270)),
    Part.LineSegment(App.Vector(12.124356, -13, 0), App.Vector(12.124356, -7, 0)),
    Part.LineSegment(App.Vector(12.124356, -7, 0), App.Vector(6.124356, -7, 0)),
], False)
sketch22.addConstraint([
    Sketcher.Constraint("Coincident", 0, 2, 1, 1),
    Sketcher.Constraint("Coincident", 1, 2, 2, 1),
    Sketcher.Constraint("Coincident", 2, 2, 0, 1),
    Sketcher.Constraint("Vertical", 1),
    Sketcher.Constraint("Horizontal", 2),
    Sketcher.Constraint("Coincident", 1, 2, 0, 3),
    Sketcher.Constraint("Radius", 0, 6.0),
    Sketcher.Constraint("DistanceY", 0, 3, -1, 1, 7.0),
    Sketcher.Constraint("DistanceX", -1, 1, 0, 3, 12.124356),
])
sketch22.setExpression("Constraints[6]", "Params.sketch22_radius")
pad22 = body22.newObject("PartDesign::Pad", "Pad021")
pad22.Profile = sketch22
pad22.setExpression("Length", "Params.pad22_length")
body23 = doc.addObject("PartDesign::Body", "Body022")

sketch23 = body23.newObject("Sketcher::SketchObject", "Sketch022")
sketch23.AttachmentSupport = (doc.getObject("XY_Plane022"), [""])
sketch23.MapMode = "FlatFace"
sketch23.addGeometry([
    Part.LineSegment(App.Vector(12.124356, -7, 0), App.Vector(18.124356, -7, 0)),
    Part.ArcOfCircle(Part.Circle(App.Vector(12.124356, -7, 0), App.Vector(0, 0, 1), 6), math.radians(0), math.radians(90)),
    Part.LineSegment(App.Vector(12.124356, -1, 0), App.Vector(12.124356, -7, 0)),
], False)
sketch23.addConstraint([
    Sketcher.Constraint("Coincident", 0, 2, 1, 1),
    Sketcher.Constraint("Coincident", 1, 2, 2, 1),
    Sketcher.Constraint("Coincident", 2, 2, 0, 1),
    Sketcher.Constraint("Horizontal", 0),
    Sketcher.Constraint("Vertical", 2),
    Sketcher.Constraint("Coincident", 2, 2, 1, 3),
    Sketcher.Constraint("Radius", 1, 6.0),
    Sketcher.Constraint("DistanceY", 1, 3, -1, 1, 7.0),
    Sketcher.Constraint("DistanceX", -1, 1, 1, 3, 12.124356),
])
sketch23.setExpression("Constraints[6]", "Params.sketch23_radius")
pad23 = body23.newObject("PartDesign::Pad", "Pad022")
pad23.Profile = sketch23
pad23.setExpression("Length", "Params.pad23_length")
body24 = doc.addObject("PartDesign::Body", "Body023")

sketch24 = body24.newObject("Sketcher::SketchObject", "Sketch023")
sketch24.AttachmentSupport = (doc.getObject("XY_Plane023"), [""])
sketch24.MapMode = "FlatFace"
sketch24.addGeometry([
    Part.LineSegment(App.Vector(0, -14, 0), App.Vector(6, -14, 0)),
    Part.ArcOfCircle(Part.Circle(App.Vector(0, -14, 0), App.Vector(0, 0, 1), 6), math.radians(0), math.radians(90)),
    Part.LineSegment(App.Vector(0, -8, 0), App.Vector(0, -14, 0)),
], False)
sketch24.addConstraint([
    Sketcher.Constraint("Coincident", 0, 2, 1, 1),
    Sketcher.Constraint("Coincident", 1, 2, 2, 1),
    Sketcher.Constraint("Coincident", 2, 2, 0, 1),
    Sketcher.Constraint("Horizontal", 0),
    Sketcher.Constraint("Vertical", 2),
    Sketcher.Constraint("Coincident", 2, 2, 1, 3),
    Sketcher.Constraint("PointOnObject", 1, 3, -2),
    Sketcher.Constraint("Radius", 1, 6.0),
    Sketcher.Constraint("DistanceY", 1, 3, -1, 1, 14.0),
])
sketch24.setExpression("Constraints[7]", "Params.sketch24_radius")
pad24 = body24.newObject("PartDesign::Pad", "Pad023")
pad24.Profile = sketch24
pad24.setExpression("Length", "Params.pad24_length")
body25 = doc.addObject("PartDesign::Body", "Body024")

sketch25 = body25.newObject("Sketcher::SketchObject", "Sketch024")
sketch25.AttachmentSupport = (doc.getObject("XY_Plane024"), [""])
sketch25.MapMode = "FlatFace"
sketch25.addGeometry([
    Part.ArcOfCircle(Part.Circle(App.Vector(0, -14, 0), App.Vector(0, 0, 1), 6), math.radians(180), math.radians(270)),
    Part.LineSegment(App.Vector(0, -20, 0), App.Vector(0, -14, 0)),
    Part.LineSegment(App.Vector(0, -14, 0), App.Vector(-6, -14, 0)),
], False)
sketch25.addConstraint([
    Sketcher.Constraint("Coincident", 0, 2, 1, 1),
    Sketcher.Constraint("Coincident", 1, 2, 2, 1),
    Sketcher.Constraint("Coincident", 2, 2, 0, 1),
    Sketcher.Constraint("Vertical", 1),
    Sketcher.Constraint("Horizontal", 2),
    Sketcher.Constraint("Coincident", 1, 2, 0, 3),
    Sketcher.Constraint("PointOnObject", 0, 3, -2),
    Sketcher.Constraint("Radius", 0, 6.0),
    Sketcher.Constraint("DistanceY", 0, 3, -1, 1, 14.0),
])
sketch25.setExpression("Constraints[7]", "Params.sketch25_radius")
pad25 = body25.newObject("PartDesign::Pad", "Pad024")
pad25.Profile = sketch25
pad25.setExpression("Length", "Params.pad25_length")
body26 = doc.addObject("PartDesign::Body", "Body025")

sketch26 = body26.newObject("Sketcher::SketchObject", "Sketch025")
sketch26.AttachmentSupport = (doc.getObject("XY_Plane025"), [""])
sketch26.MapMode = "FlatFace"
sketch26.addGeometry([
    Part.ArcOfCircle(Part.Circle(App.Vector(-12.124356, -7, 0), App.Vector(0, 0, 1), 6), math.radians(-180), math.radians(-150.000002)),
    Part.ArcOfCircle(Part.Circle(App.Vector(-12.124356, -7, 0), App.Vector(0, 0, 1), 6), math.radians(-150.000002), math.radians(-90)),
    Part.LineSegment(App.Vector(-12.124356, -13, 0), App.Vector(-12.124356, -7, 0)),
    Part.LineSegment(App.Vector(-12.124356, -7, 0), App.Vector(-18.124356, -7, 0)),
], False)
sketch26.addConstraint([
    Sketcher.Constraint("Tangent", 0, 2, 1, 1),
    Sketcher.Constraint("Coincident", 1, 2, 2, 1),
    Sketcher.Constraint("Coincident", 2, 2, 3, 1),
    Sketcher.Constraint("Coincident", 3, 2, 0, 1),
    Sketcher.Constraint("Vertical", 2),
    Sketcher.Constraint("Horizontal", 3),
    Sketcher.Constraint("Coincident", 2, 2, 0, 3),
    Sketcher.Constraint("Equal", 0, 1),
    Sketcher.Constraint("Radius", 0, 6.0),
    Sketcher.Constraint("DistanceY", 0, 3, -1, 1, 7.0),
    Sketcher.Constraint("DistanceY", 0, 2, -1, 1, 10.0),
    Sketcher.Constraint("DistanceX", 0, 2, -1, 1, 17.320508),
])
sketch26.setExpression("Constraints[8]", "Params.sketch26_radius")
pad26 = body26.newObject("PartDesign::Pad", "Pad025")
pad26.Profile = sketch26
pad26.setExpression("Length", "Params.pad26_length")
body27 = doc.addObject("PartDesign::Body", "Body026")

sketch27 = body27.newObject("Sketcher::SketchObject", "Sketch026")
sketch27.AttachmentSupport = (doc.getObject("XY_Plane026"), [""])
sketch27.MapMode = "FlatFace"
sketch27.addGeometry([
    Part.ArcOfCircle(Part.Circle(App.Vector(-12.124356, -7, 0), App.Vector(0, 0, 1), 6), math.radians(0), math.radians(90)),
    Part.LineSegment(App.Vector(-12.124356, -1, 0), App.Vector(-12.124356, -7, 0)),
    Part.LineSegment(App.Vector(-12.124356, -7, 0), App.Vector(-6.124356, -7, 0)),
], False)
sketch27.addConstraint([
    Sketcher.Constraint("Coincident", 0, 2, 1, 1),
    Sketcher.Constraint("Coincident", 1, 2, 2, 1),
    Sketcher.Constraint("Coincident", 2, 2, 0, 1),
    Sketcher.Constraint("Vertical", 1),
    Sketcher.Constraint("Horizontal", 2),
    Sketcher.Constraint("Coincident", 1, 2, 0, 3),
    Sketcher.Constraint("Radius", 0, 6.0),
    Sketcher.Constraint("DistanceY", 0, 3, -1, 1, 7.0),
    Sketcher.Constraint("DistanceX", 0, 3, -1, 1, 12.124356),
])
sketch27.setExpression("Constraints[6]", "Params.sketch27_radius")
pad27 = body27.newObject("PartDesign::Pad", "Pad026")
pad27.Profile = sketch27
pad27.setExpression("Length", "Params.pad27_length")
body28 = doc.addObject("PartDesign::Body", "Body027")

sketch28 = body28.newObject("Sketcher::SketchObject", "Sketch027")
sketch28.AttachmentSupport = (doc.getObject("XY_Plane027"), [""])
sketch28.MapMode = "FlatFace"
sketch28.addGeometry([
    Part.ArcOfCircle(Part.Circle(App.Vector(12.124356, 7, 0), App.Vector(0, 0, 1), 6), math.radians(180), math.radians(270)),
    Part.LineSegment(App.Vector(12.124356, 1, 0), App.Vector(12.124356, 7, 0)),
    Part.LineSegment(App.Vector(12.124356, 7, 0), App.Vector(6.124356, 7, 0)),
], False)
sketch28.addConstraint([
    Sketcher.Constraint("Coincident", 0, 2, 1, 1),
    Sketcher.Constraint("Coincident", 1, 2, 2, 1),
    Sketcher.Constraint("Coincident", 2, 2, 0, 1),
    Sketcher.Constraint("Vertical", 1),
    Sketcher.Constraint("Horizontal", 2),
    Sketcher.Constraint("Coincident", 1, 2, 0, 3),
    Sketcher.Constraint("Radius", 0, 6.0),
    Sketcher.Constraint("DistanceY", -1, 1, 0, 3, 7.0),
    Sketcher.Constraint("DistanceX", -1, 1, 0, 3, 12.124356),
])
sketch28.setExpression("Constraints[6]", "Params.sketch28_radius")
pad28 = body28.newObject("PartDesign::Pad", "Pad027")
pad28.Profile = sketch28
pad28.setExpression("Length", "Params.pad28_length")
body29 = doc.addObject("PartDesign::Body", "Body028")

sketch29 = body29.newObject("Sketcher::SketchObject", "Sketch028")
sketch29.AttachmentSupport = (doc.getObject("XY_Plane028"), [""])
sketch29.MapMode = "FlatFace"
sketch29.addGeometry([
    Part.Circle(App.Vector(0, 0, 0), App.Vector(0, 0, 1), 31.167473),
    Part.ArcOfCircle(Part.Circle(App.Vector(0, 0, 0), App.Vector(0, 0, 1), 20), math.radians(30), math.radians(90)),
    Part.ArcOfCircle(Part.Circle(App.Vector(0, 0, 0), App.Vector(0, 0, 1), 20), math.radians(0), math.radians(30)),
    Part.ArcOfCircle(Part.Circle(App.Vector(0, 0, 0), App.Vector(0, 0, 1), 20), math.radians(-30), math.radians(0)),
    Part.ArcOfCircle(Part.Circle(App.Vector(0, 0, 0), App.Vector(0, 0, 1), 20), math.radians(-90), math.radians(-30)),
    Part.ArcOfCircle(Part.Circle(App.Vector(0, 0, 0), App.Vector(0, 0, 1), 20), math.radians(-150.000001), math.radians(-90)),
    Part.ArcOfCircle(Part.Circle(App.Vector(0, 0, 0), App.Vector(0, 0, 1), 20), math.radians(150), math.radians(209.999999)),
    Part.ArcOfCircle(Part.Circle(App.Vector(0, 0, 0), App.Vector(0, 0, 1), 20), math.radians(90), math.radians(150)),
], False)
sketch29.addConstraint([
    Sketcher.Constraint("Tangent", 1, 1, 2, 2),
    Sketcher.Constraint("Tangent", 2, 1, 3, 2),
    Sketcher.Constraint("Tangent", 3, 1, 4, 2),
    Sketcher.Constraint("Tangent", 4, 1, 5, 2),
    Sketcher.Constraint("Tangent", 5, 1, 6, 2),
    Sketcher.Constraint("Tangent", 6, 1, 7, 2),
    Sketcher.Constraint("Tangent", 7, 1, 1, 2),
    Sketcher.Constraint("Coincident", 0, 3, -1, 1),
    Sketcher.Constraint("Coincident", 1, 3, -1, 1),
    Sketcher.Constraint("Coincident", 3, 3, -1, 1),
    Sketcher.Constraint("Coincident", 5, 3, -1, 1),
    Sketcher.Constraint("PointOnObject", 2, 1, -1),
    Sketcher.Constraint("PointOnObject", 4, 1, -2),
    Sketcher.Constraint("PointOnObject", 7, 1, -2),
    Sketcher.Constraint("Horizontal", 3, 1, 5, 1),
    Sketcher.Constraint("Horizontal", 1, 1, 6, 1),
    Sketcher.Constraint("Vertical", 1, 1, 3, 1),
    Sketcher.Constraint("Radius", 1, 20.0),
    Sketcher.Constraint("DistanceY", -1, 1, 1, 1, 10.0),
    Sketcher.Constraint("Diameter", 0, 62.334946),
])
sketch29.setExpression("Constraints[17]", "Params.sketch29_radius")
pad29 = body29.newObject("PartDesign::Pad", "Pad028")
pad29.Profile = sketch29
pad29.setExpression("Length", "Params.pad29_length")

doc.recompute()
